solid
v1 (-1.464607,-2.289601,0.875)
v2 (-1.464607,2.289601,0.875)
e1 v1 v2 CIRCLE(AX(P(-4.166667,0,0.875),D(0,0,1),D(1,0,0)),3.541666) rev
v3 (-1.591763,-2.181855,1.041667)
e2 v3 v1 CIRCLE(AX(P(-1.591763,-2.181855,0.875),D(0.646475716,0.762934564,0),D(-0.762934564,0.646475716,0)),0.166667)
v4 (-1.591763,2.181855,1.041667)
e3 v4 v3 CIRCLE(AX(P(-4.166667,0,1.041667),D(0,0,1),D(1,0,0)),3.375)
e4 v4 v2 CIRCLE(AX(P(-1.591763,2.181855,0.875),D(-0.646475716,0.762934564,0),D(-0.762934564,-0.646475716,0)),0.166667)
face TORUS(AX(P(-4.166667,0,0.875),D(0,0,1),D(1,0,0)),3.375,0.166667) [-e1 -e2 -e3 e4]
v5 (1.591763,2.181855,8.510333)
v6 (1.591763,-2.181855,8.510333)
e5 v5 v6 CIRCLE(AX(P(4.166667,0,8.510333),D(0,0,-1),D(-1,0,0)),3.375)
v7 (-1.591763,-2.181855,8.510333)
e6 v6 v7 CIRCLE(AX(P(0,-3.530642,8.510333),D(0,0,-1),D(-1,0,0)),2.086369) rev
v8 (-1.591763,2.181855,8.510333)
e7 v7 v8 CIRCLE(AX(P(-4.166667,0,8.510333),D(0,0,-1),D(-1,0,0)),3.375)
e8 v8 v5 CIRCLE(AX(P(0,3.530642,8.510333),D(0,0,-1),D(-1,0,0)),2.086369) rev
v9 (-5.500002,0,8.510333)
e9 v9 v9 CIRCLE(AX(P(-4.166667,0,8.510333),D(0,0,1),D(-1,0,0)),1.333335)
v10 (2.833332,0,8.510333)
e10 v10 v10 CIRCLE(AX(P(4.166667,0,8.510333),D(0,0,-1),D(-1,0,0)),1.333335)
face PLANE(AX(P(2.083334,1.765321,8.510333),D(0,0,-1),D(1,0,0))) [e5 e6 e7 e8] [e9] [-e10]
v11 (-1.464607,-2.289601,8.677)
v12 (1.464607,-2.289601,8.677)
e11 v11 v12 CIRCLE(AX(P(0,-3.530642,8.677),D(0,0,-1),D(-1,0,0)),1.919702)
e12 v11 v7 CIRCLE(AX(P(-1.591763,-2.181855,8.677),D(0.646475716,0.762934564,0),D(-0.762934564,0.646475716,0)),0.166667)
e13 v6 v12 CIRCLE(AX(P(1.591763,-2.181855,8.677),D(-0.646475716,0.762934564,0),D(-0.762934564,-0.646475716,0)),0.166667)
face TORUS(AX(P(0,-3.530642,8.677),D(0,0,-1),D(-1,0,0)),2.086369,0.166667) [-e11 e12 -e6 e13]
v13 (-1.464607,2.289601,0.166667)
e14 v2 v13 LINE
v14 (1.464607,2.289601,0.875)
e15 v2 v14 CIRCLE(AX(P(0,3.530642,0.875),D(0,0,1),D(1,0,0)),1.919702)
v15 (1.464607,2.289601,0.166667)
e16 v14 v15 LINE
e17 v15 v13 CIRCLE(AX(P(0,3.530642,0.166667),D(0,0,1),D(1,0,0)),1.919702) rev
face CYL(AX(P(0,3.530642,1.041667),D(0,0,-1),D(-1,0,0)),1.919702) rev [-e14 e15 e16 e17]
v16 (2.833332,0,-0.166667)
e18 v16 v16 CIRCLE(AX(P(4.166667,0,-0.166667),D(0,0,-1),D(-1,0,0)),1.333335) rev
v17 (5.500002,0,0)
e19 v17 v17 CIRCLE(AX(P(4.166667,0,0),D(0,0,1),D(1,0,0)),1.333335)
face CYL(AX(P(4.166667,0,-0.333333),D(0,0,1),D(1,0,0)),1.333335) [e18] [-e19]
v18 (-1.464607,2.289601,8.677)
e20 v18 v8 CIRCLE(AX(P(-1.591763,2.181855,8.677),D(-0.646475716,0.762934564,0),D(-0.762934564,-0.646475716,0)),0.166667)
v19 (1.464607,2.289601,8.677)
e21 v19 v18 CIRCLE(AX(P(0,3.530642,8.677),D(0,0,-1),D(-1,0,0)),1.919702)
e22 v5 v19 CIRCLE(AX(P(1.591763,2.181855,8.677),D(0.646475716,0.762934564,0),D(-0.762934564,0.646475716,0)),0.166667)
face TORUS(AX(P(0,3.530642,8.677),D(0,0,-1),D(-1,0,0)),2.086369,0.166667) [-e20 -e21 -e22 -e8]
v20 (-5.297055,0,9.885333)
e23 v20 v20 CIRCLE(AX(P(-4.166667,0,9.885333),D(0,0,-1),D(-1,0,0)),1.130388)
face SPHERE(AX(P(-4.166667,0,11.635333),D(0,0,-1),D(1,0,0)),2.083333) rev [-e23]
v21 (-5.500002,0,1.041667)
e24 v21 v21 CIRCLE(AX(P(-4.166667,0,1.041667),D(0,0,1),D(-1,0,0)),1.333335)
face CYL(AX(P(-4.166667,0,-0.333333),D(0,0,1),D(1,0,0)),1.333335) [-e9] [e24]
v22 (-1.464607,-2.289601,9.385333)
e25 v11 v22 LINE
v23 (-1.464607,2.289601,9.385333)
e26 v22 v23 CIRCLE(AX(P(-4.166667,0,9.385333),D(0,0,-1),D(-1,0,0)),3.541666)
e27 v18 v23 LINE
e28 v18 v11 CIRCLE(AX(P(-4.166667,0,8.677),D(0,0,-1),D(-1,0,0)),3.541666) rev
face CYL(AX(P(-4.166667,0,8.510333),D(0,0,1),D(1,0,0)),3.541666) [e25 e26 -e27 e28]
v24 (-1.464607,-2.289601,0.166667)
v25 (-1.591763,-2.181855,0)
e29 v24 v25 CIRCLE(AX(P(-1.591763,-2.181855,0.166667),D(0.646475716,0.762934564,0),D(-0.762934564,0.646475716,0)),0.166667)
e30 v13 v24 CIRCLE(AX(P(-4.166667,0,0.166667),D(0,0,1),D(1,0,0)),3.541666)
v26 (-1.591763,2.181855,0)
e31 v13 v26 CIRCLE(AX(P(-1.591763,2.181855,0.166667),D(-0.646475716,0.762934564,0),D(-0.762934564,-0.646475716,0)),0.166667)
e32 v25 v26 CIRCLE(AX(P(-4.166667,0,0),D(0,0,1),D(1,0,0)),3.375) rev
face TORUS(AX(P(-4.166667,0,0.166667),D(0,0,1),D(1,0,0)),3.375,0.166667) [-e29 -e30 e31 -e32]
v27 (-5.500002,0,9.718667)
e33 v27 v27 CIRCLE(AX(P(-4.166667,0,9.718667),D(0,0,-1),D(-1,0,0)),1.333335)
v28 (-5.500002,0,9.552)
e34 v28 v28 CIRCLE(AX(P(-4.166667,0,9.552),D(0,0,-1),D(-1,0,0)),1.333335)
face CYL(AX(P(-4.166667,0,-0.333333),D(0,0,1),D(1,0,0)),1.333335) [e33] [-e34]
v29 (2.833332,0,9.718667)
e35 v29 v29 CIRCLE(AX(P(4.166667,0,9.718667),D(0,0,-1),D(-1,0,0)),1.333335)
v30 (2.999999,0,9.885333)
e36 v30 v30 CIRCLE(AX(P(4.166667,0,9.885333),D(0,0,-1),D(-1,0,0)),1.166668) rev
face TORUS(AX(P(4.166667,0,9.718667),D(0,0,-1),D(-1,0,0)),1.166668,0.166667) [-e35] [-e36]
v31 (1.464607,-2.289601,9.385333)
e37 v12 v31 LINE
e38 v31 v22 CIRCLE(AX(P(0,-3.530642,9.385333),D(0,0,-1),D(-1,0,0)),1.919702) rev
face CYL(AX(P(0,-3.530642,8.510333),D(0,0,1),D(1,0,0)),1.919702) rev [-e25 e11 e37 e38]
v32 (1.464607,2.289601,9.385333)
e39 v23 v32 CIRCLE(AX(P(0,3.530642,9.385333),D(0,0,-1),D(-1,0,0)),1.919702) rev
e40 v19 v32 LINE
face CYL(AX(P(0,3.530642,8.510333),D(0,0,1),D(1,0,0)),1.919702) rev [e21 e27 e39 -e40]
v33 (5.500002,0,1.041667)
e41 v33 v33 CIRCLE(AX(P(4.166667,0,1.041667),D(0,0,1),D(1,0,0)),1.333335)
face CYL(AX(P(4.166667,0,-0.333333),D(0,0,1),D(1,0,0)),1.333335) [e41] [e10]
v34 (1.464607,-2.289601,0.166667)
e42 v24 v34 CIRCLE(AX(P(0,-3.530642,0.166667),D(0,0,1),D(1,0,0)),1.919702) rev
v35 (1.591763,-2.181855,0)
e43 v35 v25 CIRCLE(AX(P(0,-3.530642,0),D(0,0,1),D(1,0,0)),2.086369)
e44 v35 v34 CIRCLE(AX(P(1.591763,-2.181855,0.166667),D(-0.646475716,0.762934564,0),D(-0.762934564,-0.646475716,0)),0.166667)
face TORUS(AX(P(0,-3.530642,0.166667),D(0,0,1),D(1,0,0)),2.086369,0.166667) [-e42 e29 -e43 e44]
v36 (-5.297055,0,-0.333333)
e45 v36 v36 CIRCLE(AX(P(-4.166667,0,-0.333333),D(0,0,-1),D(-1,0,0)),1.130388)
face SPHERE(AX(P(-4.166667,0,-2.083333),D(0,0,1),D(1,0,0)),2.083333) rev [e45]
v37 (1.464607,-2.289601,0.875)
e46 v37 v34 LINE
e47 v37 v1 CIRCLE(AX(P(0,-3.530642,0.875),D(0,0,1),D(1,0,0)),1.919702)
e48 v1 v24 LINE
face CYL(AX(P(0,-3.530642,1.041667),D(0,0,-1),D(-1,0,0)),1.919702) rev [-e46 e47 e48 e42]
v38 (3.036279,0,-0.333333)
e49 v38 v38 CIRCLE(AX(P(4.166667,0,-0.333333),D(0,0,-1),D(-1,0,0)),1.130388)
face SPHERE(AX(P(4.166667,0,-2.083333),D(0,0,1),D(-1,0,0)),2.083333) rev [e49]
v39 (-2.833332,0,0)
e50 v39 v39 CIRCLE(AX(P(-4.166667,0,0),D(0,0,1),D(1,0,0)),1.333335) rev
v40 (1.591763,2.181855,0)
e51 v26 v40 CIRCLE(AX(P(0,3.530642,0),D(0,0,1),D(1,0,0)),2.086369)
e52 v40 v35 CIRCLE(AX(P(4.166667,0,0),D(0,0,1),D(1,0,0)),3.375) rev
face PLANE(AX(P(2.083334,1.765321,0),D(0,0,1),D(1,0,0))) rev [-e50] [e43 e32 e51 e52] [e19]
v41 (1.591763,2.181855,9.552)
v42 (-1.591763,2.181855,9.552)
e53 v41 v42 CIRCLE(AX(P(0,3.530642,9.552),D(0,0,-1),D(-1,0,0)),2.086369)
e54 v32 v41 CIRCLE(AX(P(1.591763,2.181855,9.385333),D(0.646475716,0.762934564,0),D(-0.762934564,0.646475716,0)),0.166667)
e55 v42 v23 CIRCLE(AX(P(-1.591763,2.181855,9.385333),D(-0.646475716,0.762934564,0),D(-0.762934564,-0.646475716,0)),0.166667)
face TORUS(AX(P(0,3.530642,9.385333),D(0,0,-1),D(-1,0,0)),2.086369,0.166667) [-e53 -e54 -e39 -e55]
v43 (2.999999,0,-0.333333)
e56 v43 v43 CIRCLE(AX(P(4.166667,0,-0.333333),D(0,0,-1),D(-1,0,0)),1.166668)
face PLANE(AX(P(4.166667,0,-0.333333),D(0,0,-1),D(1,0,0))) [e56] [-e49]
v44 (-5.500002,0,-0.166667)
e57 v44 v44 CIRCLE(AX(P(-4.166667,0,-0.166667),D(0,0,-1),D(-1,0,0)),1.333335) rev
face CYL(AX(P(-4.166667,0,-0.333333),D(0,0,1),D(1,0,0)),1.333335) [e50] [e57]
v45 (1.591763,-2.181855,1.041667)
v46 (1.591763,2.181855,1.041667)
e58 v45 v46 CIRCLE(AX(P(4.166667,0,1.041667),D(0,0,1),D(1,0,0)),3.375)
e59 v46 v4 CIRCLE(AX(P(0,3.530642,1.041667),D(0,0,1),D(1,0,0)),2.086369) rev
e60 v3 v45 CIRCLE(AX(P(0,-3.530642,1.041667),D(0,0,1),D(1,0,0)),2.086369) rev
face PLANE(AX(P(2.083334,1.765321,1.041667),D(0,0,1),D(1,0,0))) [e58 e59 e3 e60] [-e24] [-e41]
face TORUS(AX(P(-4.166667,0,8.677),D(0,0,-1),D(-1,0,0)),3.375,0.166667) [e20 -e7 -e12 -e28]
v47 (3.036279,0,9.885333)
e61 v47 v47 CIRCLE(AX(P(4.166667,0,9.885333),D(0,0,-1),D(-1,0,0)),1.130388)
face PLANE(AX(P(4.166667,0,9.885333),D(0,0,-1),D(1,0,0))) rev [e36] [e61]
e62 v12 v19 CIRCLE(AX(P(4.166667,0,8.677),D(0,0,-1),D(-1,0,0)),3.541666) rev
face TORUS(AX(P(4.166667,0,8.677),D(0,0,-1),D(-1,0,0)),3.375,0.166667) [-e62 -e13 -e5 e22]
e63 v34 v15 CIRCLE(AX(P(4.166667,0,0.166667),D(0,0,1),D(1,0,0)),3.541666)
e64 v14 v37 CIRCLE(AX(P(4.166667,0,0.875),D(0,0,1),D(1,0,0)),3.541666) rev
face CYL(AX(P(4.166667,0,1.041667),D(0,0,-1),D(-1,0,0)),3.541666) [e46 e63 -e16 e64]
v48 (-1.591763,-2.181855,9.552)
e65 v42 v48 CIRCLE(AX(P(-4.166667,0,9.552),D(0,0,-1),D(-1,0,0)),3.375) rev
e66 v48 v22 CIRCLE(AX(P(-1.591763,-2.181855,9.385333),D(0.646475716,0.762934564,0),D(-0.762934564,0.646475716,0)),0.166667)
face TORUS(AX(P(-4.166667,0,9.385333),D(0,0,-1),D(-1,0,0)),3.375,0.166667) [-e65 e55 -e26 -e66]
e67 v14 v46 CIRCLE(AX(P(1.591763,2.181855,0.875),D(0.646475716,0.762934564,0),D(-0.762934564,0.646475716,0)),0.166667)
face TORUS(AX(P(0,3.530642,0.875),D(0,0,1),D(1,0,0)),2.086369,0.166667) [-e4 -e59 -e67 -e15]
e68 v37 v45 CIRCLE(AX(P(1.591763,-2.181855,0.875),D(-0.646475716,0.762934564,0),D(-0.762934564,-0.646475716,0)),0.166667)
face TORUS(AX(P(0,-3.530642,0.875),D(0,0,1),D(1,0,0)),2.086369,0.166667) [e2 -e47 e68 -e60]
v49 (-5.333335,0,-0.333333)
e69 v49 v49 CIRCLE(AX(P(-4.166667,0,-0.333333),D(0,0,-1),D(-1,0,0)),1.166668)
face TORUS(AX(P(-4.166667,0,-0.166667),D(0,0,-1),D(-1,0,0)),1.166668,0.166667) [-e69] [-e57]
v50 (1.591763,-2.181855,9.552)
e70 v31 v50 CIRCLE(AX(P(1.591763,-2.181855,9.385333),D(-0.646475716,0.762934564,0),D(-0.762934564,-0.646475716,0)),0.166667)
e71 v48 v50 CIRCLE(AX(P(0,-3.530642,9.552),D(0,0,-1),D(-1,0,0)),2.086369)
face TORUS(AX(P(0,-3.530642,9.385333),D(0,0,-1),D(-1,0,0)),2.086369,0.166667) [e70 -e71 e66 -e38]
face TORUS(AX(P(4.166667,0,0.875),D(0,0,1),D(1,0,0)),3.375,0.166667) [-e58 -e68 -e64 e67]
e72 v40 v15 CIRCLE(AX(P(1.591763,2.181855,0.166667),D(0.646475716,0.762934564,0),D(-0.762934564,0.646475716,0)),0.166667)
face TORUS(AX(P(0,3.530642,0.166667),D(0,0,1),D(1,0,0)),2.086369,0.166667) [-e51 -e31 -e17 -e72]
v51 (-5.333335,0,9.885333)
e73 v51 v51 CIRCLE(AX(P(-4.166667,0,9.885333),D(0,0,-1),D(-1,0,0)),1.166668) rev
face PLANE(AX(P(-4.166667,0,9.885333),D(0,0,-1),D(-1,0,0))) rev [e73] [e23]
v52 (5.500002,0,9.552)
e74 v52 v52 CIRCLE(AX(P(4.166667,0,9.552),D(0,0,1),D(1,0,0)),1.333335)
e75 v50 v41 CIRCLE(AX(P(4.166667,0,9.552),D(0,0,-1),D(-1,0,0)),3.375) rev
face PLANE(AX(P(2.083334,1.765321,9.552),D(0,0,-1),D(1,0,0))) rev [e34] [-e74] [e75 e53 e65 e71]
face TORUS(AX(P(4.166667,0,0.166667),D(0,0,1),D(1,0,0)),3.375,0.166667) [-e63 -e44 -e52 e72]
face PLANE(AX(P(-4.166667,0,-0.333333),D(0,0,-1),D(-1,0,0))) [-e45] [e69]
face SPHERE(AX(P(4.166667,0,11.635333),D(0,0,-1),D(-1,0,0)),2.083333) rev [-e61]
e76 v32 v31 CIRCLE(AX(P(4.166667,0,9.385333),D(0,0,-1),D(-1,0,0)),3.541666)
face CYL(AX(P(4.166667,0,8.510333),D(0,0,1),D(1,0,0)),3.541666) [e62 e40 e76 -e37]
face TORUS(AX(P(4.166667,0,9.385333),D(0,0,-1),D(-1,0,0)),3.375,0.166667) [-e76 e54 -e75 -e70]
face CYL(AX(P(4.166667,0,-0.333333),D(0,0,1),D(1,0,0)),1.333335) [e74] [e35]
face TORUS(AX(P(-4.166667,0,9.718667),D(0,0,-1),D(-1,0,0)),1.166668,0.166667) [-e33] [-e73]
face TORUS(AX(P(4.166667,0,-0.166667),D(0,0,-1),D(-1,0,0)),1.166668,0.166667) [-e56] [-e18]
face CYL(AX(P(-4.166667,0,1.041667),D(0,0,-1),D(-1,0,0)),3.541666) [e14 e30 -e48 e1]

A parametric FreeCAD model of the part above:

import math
import FreeCAD as App
import Part
import Sketcher

V = App.Vector


def edges_at(feature, points):
    """Names of the edges that pass closest to the given points."""
    edges = feature.Shape.Edges
    near = lambda p: min(range(len(edges)), key=lambda i: edges[i].distToShape(Part.Vertex(*p))[0])
    return sorted({f"Edge{near(p) + 1}" for p in points})

doc = App.newDocument("Part")
body = doc.addObject("PartDesign::Body", "Body")

# Sketch on XY plane
sketch1 = body.newObject("Sketcher::SketchObject", "Sketch")
sketch1.AttachmentSupport = (doc.getObject("XY_Plane"), [""])
sketch1.MapMode = "FlatFace"
sketch1.addGeometry(Part.ArcOfCircle(Part.Circle(V(4.166667, 0, 0), V(0, 0, 1), 3.541666), math.radians(-139.72359), math.radians(139.72359)), False)
sketch1.addGeometry(Part.ArcOfCircle(Part.Circle(V(0, 3.530642, 0), V(0, 0, 1), 1.919702), math.radians(-139.72359), math.radians(-40.27641)), False)
sketch1.addGeometry(Part.ArcOfCircle(Part.Circle(V(-4.166667, 0, 0), V(0, 0, 1), 3.541666), math.radians(40.27641), math.radians(319.72359)), False)
sketch1.addGeometry(Part.ArcOfCircle(Part.Circle(V(0, -3.530642, 0), V(0, 0, 1), 1.919702), math.radians(40.27641), math.radians(139.72359)), False)
sketch1.addGeometry(Part.Circle(V(-4.166667, 0, 0), V(0, 0, 1), 1.333335), False)
sketch1.addGeometry(Part.Circle(V(4.166667, 0, 0), V(0, 0, 1), 1.333335), False)
sketch1.addConstraint(Sketcher.Constraint("Tangent", 0, 2, 1, 2))
sketch1.addConstraint(Sketcher.Constraint("Tangent", 1, 1, 2, 1))
sketch1.addConstraint(Sketcher.Constraint("Tangent", 2, 2, 3, 2))
sketch1.addConstraint(Sketcher.Constraint("Tangent", 3, 1, 0, 1))
sketch1.addConstraint(Sketcher.Constraint("Coincident", 4, 3, 2, 3))
sketch1.addConstraint(Sketcher.Constraint("Coincident", 5, 3, 0, 3))
sketch1.addConstraint(Sketcher.Constraint("Equal", 0, 2))
sketch1.addConstraint(Sketcher.Constraint("Equal", 1, 3))
sketch1.addConstraint(Sketcher.Constraint("Equal", 4, 5))
sketch1.addConstraint(Sketcher.Constraint("Symmetric", 0, 3, 2, 3, -1, 1))
sketch1.addConstraint(Sketcher.Constraint("PointOnObject", 0, 3, -1))
sketch1.addConstraint(Sketcher.Constraint("Diameter", 4, 2.66667))
sketch1.addConstraint(Sketcher.Constraint("Radius", 0, 3.541666))
sketch1.addConstraint(Sketcher.Constraint("Radius", 1, 1.919702))
sketch1.addConstraint(Sketcher.Constraint("DistanceY", -1, 1, 0, 2, 2.289601))
pad1 = body.newObject("PartDesign::Pad", "Pad")
pad1.Profile = sketch1
pad1.Length = 1.041667

# Sketch on XY plane
sketch2 = body.newObject("Sketcher::SketchObject", "Sketch001")
sketch2.AttachmentSupport = (doc.getObject("XY_Plane"), [""])
sketch2.MapMode = "FlatFace"
sketch2.AttachmentOffset = App.Placement(V(0, 0, -0.333333), App.Rotation())
sketch2.addGeometry(Part.Circle(V(-4.166667, 0, 0), V(0, 0, 1), 1.333335), False)
sketch2.addConstraint(Sketcher.Constraint("PointOnObject", 0, 3, -1))
sketch2.addConstraint(Sketcher.Constraint("Diameter", 0, 2.66667))
sketch2.addConstraint(Sketcher.Constraint("DistanceX", 0, 3, -1, 1, 4.166667))
pad2 = body.newObject("PartDesign::Pad", "Pad001")
pad2.Profile = sketch2
pad2.Length = 10.218667
doc.recompute()

datumplane = body.newObject("PartDesign::Plane", "DatumPlane")
datumplane.AttachmentSupport = (doc.getObject("XY_Plane"), [""])
datumplane.MapMode = "FlatFace"
datumplane.AttachmentOffset = App.Placement(V(0, 0, 4.776), App.Rotation())
mirrored = body.newObject("PartDesign::Mirrored", "Mirrored")
mirrored.Originals = [pad1]
mirrored.MirrorPlane = (datumplane, [""])
body.Tip = mirrored

# Sketch on XZ plane
sketch3 = body.newObject("Sketcher::SketchObject", "Sketch002")
sketch3.AttachmentSupport = (doc.getObject("XZ_Plane"), [""])
sketch3.MapMode = "FlatFace"
sketch3.addGeometry(Part.LineSegment(V(-4.166667, 10.593666, 0), V(-4.166667, 9.552, 0)), False)
sketch3.addGeometry(Part.ArcOfCircle(Part.Circle(V(-4.166667, 11.635333, 0), V(0, 0, 1), 2.083333), math.radians(-150), math.radians(-90)), False)
sketch3.addGeometry(Part.LineSegment(V(-5.970886, 10.593666, 0), V(-4.166667, 10.593666, 0)), False)
sketch3.addGeometry(Part.LineSegment(V(-4.166667, 9.552, 0), V(-4.166667, 11.635333, 0)), True)  # axis
sketch3.addConstraint(Sketcher.Constraint("Coincident", 0, 2, 1, 2))
sketch3.addConstraint(Sketcher.Constraint("Coincident", 1, 1, 2, 1))
sketch3.addConstraint(Sketcher.Constraint("Coincident", 2, 2, 0, 1))
sketch3.addConstraint(Sketcher.Constraint("Vertical", 0))
sketch3.addConstraint(Sketcher.Constraint("Horizontal", 2))
sketch3.addConstraint(Sketcher.Constraint("Vertical", 3))
sketch3.addConstraint(Sketcher.Constraint("Coincident", 3, 1, 0, 2))
sketch3.addConstraint(Sketcher.Constraint("Coincident", 3, 2, 1, 3))
sketch3.addConstraint(Sketcher.Constraint("DistanceY", -1, 1, 0, 2, 9.552))
sketch3.addConstraint(Sketcher.Constraint("Radius", 1, 2.083333))
sketch3.addConstraint(Sketcher.Constraint("DistanceX", 2, 1, 2, 2, 1.804219))
sketch3.addConstraint(Sketcher.Constraint("DistanceX", 1, 3, -1, 1, 4.166667))
groove = body.newObject("PartDesign::Groove", "Groove")
groove.Profile = sketch3
groove.ReferenceAxis = (sketch3, ["Axis0"])
groove.Angle = 360
doc.recompute()

mirrored2 = body.newObject("PartDesign::Mirrored", "Mirrored001")
mirrored2.Originals = [pad2, groove]
mirrored2.MirrorPlane = (doc.getObject("YZ_Plane"), [""])
body.Tip = mirrored2
doc.recompute()

datumplane2 = body.newObject("PartDesign::Plane", "DatumPlane001")
datumplane2.AttachmentSupport = (doc.getObject("XY_Plane"), [""])
datumplane2.MapMode = "FlatFace"
datumplane2.AttachmentOffset = App.Placement(V(0, 0, 4.776), App.Rotation())
mirrored3 = body.newObject("PartDesign::Mirrored", "Mirrored002")
mirrored3.Originals = [groove]
mirrored3.MirrorPlane = (datumplane2, [""])
body.Tip = mirrored3

# Sketch on XZ plane
sketch4 = body.newObject("Sketcher::SketchObject", "Sketch003")
sketch4.AttachmentSupport = (doc.getObject("XZ_Plane"), [""])
sketch4.MapMode = "FlatFace"
sketch4.addGeometry(Part.LineSegment(V(4.166667, -1.041667, 0), V(4.166667, 0, 0)), False)
sketch4.addGeometry(Part.ArcOfCircle(Part.Circle(V(4.166667, -2.083333, 0), V(0, 0, 1), 2.083333), math.radians(30), math.radians(90)), False)
sketch4.addGeometry(Part.LineSegment(V(5.970886, -1.041667, 0), V(4.166667, -1.041667, 0)), False)
sketch4.addGeometry(Part.LineSegment(V(4.166667, 0, 0), V(4.166667, -2.083333, 0)), True)  # axis
sketch4.addConstraint(Sketcher.Constraint("Coincident", 0, 2, 1, 2))
sketch4.addConstraint(Sketcher.Constraint("Coincident", 1, 1, 2, 1))
sketch4.addConstraint(Sketcher.Constraint("Coincident", 2, 2, 0, 1))
sketch4.addConstraint(Sketcher.Constraint("Vertical", 0))
sketch4.addConstraint(Sketcher.Constraint("Horizontal", 2))
sketch4.addConstraint(Sketcher.Constraint("Vertical", 3))
sketch4.addConstraint(Sketcher.Constraint("Coincident", 3, 1, 0, 2))
sketch4.addConstraint(Sketcher.Constraint("Coincident", 3, 2, 1, 3))
sketch4.addConstraint(Sketcher.Constraint("PointOnObject", 0, 2, -1))
sketch4.addConstraint(Sketcher.Constraint("Radius", 1, 2.083333))
sketch4.addConstraint(Sketcher.Constraint("DistanceX", 2, 2, 2, 1, 1.804219))
sketch4.addConstraint(Sketcher.Constraint("DistanceX", -1, 1, 1, 3, 4.166667))
groove2 = body.newObject("PartDesign::Groove", "Groove001")
groove2.Profile = sketch4
groove2.ReferenceAxis = (sketch4, ["Axis0"])
groove2.Angle = 360

# Sketch on XZ plane
sketch5 = body.newObject("Sketcher::SketchObject", "Sketch004")
sketch5.AttachmentSupport = (doc.getObject("XZ_Plane"), [""])
sketch5.MapMode = "FlatFace"
sketch5.addGeometry(Part.LineSegment(V(4.166667, 9.552, 0), V(4.166667, 10.593666, 0)), False)
sketch5.addGeometry(Part.LineSegment(V(4.166667, 10.593666, 0), V(5.970886, 10.593666, 0)), False)
sketch5.addGeometry(Part.ArcOfCircle(Part.Circle(V(4.166667, 11.635333, 0), V(0, 0, 1), 2.083333), math.radians(-90), math.radians(-30)), False)
sketch5.addGeometry(Part.LineSegment(V(4.166667, 11.635333, 0), V(4.166667, 9.552, 0)), True)  # axis
sketch5.addConstraint(Sketcher.Constraint("Coincident", 0, 2, 1, 1))
sketch5.addConstraint(Sketcher.Constraint("Coincident", 1, 2, 2, 2))
sketch5.addConstraint(Sketcher.Constraint("Coincident", 2, 1, 0, 1))
sketch5.addConstraint(Sketcher.Constraint("Vertical", 0))
sketch5.addConstraint(Sketcher.Constraint("Horizontal", 1))
sketch5.addConstraint(Sketcher.Constraint("Vertical", 3))
sketch5.addConstraint(Sketcher.Constraint("Coincident", 3, 1, 2, 3))
sketch5.addConstraint(Sketcher.Constraint("Coincident", 3, 2, 2, 1))
sketch5.addConstraint(Sketcher.Constraint("DistanceY", -1, 1, 2, 1, 9.552))
sketch5.addConstraint(Sketcher.Constraint("Radius", 2, 2.083333))
sketch5.addConstraint(Sketcher.Constraint("DistanceX", 1, 1, 1, 2, 1.804219))
sketch5.addConstraint(Sketcher.Constraint("DistanceX", -1, 1, 2, 3, 4.166667))
groove3 = body.newObject("PartDesign::Groove", "Groove002")
groove3.Profile = sketch5
groove3.ReferenceAxis = (sketch5, ["Axis0"])
groove3.Angle = 360
doc.recompute()

fillet = body.newObject("PartDesign::Fillet", "Fillet")
fillet.Base = (groove3, edges_at(groove3, [
    (-5.5, 0, 9.885),
    (-5.5, 0, -0.333),
    (5.5, 0, -0.333),
    (5.5, 0, 9.885),
]))
fillet.Radius = 0.166667
doc.recompute()

fillet2 = body.newObject("PartDesign::Fillet", "Fillet001")
fillet2.Base = (fillet, edges_at(fillet, [
    (0, -1.611, 1.042),
    (7.708, 0, 1.042),
    (0, 1.611, 8.51),
    (7.708, 0, 8.51),
    (0, -1.611, 8.51),
    (-7.708, 0, 8.51),
    (0, 1.611, 9.552),
    (-7.708, 0, 9.552),
    (0, -1.611, 9.552),
    (7.708, 0, 9.552),
    (0, 1.611, 1.042),
    (7.708, 0, 0),
    (0, -1.611, 0),
    (-7.708, 0, 0),
    (0, 1.611, 0),
    (-7.708, 0, 1.042),
]))
fillet2.Radius = 0.166667

doc.recompute()
